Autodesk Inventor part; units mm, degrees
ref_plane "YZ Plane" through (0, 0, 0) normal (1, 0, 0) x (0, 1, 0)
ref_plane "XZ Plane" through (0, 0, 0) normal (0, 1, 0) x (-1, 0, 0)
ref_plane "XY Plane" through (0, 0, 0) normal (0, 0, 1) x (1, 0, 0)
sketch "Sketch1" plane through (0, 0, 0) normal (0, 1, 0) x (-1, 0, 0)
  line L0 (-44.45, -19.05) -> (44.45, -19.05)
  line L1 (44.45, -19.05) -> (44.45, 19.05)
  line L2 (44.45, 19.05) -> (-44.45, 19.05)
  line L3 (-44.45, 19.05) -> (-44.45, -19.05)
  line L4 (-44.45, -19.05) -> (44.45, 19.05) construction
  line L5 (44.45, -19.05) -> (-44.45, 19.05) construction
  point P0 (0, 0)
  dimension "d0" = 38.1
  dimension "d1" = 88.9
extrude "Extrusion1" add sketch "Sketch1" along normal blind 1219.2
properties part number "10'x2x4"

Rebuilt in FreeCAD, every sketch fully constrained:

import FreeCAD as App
import Part
import Sketcher

V = App.Vector
Q = App.Units.Quantity

doc = App.newDocument("Part")
body = doc.addObject("PartDesign::Body", "Body")

# Sketch on XZ plane
sketch1 = body.newObject("Sketcher::SketchObject", "Sketch")
sketch1.AttachmentSupport = (doc.getObject("XZ_Plane"), [""])
sketch1.MapMode = "FlatFace"
sketch1.addGeometry([
    Part.LineSegment(V(44, 19, 0), V(44, -19, 0)),
    Part.LineSegment(V(44, -19, 0), V(-44, -19, 0)),
    Part.LineSegment(V(-44, -19, 0), V(-44, 19, 0)),
    Part.LineSegment(V(-44, 19, 0), V(44, 19, 0)),
], False)
sketch1.addConstraint([
    Sketcher.Constraint("Coincident", 0, 2, 1, 1),
    Sketcher.Constraint("Coincident", 1, 2, 2, 1),
    Sketcher.Constraint("Coincident", 2, 2, 3, 1),
    Sketcher.Constraint("Coincident", 3, 2, 0, 1),
    Sketcher.Constraint("Vertical", 0),
    Sketcher.Constraint("Horizontal", 1),
    Sketcher.Constraint("Vertical", 2),
    Sketcher.Constraint("Horizontal", 3),
    Sketcher.Constraint("Symmetric", 0, 2, 2, 2, -1, 1),
    Sketcher.Constraint("DistanceX", 1, 2, 1, 1, Q("3.5 in")),
    Sketcher.Constraint("DistanceY", 0, 2, 0, 1, Q("1.5 in")),
])
pad1 = body.newObject("PartDesign::Pad", "Pad")
pad1.Profile = sketch1
pad1.Length = Q("48 in")
pad1.Reversed = True

doc.recompute()
